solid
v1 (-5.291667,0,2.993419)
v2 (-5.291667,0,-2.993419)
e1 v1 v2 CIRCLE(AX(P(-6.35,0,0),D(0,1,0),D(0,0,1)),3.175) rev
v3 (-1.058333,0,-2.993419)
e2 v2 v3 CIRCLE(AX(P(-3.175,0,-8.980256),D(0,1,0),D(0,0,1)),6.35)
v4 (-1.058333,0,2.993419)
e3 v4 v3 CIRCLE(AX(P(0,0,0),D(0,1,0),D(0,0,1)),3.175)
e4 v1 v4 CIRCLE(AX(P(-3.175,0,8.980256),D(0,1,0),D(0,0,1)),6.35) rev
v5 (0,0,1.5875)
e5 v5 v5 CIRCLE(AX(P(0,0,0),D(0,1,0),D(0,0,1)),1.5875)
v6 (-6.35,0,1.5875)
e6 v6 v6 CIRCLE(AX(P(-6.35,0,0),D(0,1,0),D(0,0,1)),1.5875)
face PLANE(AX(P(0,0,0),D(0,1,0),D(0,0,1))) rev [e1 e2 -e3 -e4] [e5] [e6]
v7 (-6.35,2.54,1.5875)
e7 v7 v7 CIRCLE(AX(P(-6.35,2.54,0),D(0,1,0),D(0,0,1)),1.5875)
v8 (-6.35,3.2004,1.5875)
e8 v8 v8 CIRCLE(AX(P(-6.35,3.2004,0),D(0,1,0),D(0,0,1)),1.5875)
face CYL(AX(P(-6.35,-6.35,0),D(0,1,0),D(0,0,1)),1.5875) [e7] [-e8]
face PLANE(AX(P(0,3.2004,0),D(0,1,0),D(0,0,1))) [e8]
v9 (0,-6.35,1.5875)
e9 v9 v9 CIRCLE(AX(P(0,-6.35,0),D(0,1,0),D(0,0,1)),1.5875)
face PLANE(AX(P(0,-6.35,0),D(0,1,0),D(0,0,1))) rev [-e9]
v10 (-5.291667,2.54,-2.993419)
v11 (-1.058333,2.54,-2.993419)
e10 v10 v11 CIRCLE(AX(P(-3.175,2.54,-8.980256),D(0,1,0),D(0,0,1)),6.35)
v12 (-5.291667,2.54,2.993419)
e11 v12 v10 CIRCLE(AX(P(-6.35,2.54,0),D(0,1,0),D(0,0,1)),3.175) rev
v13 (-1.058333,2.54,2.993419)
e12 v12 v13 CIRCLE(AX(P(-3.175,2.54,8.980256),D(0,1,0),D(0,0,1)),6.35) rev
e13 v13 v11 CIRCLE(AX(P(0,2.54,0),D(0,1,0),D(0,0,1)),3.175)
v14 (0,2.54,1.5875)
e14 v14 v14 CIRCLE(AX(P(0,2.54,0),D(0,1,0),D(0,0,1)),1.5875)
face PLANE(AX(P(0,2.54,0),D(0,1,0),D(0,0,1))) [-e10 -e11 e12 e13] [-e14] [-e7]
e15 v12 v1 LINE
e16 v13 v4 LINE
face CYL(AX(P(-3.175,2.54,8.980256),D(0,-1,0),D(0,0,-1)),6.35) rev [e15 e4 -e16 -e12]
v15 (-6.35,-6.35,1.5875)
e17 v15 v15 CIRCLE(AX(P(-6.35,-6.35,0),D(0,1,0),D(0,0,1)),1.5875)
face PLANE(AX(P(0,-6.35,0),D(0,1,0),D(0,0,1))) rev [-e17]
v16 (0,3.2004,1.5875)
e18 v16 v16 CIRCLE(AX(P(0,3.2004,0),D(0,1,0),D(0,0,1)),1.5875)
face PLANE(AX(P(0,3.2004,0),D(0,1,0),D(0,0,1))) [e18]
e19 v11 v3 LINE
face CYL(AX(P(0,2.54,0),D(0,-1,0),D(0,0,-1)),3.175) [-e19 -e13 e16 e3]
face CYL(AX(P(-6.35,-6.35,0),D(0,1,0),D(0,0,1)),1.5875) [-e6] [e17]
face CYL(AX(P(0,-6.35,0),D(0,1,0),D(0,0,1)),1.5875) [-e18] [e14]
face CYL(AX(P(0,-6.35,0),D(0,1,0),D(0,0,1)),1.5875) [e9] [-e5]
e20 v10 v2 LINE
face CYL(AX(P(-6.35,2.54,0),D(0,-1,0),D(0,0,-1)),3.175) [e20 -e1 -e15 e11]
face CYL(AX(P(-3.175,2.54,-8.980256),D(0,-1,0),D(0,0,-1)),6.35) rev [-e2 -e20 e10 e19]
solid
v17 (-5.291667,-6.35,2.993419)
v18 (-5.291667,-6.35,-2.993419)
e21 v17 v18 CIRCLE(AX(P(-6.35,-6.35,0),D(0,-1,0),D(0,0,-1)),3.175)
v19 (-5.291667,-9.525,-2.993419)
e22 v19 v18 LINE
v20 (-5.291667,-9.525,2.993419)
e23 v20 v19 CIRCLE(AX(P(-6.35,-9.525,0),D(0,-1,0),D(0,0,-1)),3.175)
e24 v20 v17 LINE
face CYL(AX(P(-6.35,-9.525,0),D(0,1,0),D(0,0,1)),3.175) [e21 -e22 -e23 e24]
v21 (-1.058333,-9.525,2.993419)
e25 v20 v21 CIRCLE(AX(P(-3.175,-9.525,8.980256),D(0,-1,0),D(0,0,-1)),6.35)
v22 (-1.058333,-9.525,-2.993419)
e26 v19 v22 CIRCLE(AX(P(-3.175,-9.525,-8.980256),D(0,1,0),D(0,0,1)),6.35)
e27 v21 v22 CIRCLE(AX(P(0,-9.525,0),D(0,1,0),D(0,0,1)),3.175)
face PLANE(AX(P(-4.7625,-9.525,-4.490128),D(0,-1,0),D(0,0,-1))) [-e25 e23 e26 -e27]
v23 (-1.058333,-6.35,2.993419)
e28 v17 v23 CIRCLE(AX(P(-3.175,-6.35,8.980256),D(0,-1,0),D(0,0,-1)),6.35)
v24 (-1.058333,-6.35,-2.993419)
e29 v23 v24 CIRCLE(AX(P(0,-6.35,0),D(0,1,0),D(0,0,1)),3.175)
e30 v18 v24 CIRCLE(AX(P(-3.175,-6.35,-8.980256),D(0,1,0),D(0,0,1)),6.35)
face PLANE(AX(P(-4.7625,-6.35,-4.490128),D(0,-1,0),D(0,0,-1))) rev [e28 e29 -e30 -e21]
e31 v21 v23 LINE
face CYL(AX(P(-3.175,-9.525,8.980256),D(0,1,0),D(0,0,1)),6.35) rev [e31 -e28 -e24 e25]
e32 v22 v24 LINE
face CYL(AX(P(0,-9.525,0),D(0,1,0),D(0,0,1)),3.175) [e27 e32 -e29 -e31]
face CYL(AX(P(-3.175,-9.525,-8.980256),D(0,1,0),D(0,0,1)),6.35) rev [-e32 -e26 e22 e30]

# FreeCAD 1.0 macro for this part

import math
import FreeCAD as App
import Part
import Sketcher
Q = App.Units.Quantity

doc = App.newDocument("Part")
body = doc.addObject("PartDesign::Body", "Body")

sketch1 = body.newObject("Sketcher::SketchObject", "Sketch")
sketch1.AttachmentSupport = (doc.getObject("XZ_Plane"), [""])
sketch1.MapMode = "FlatFace"
sketch1.addGeometry([
    Part.ArcOfCircle(Part.Circle(App.Vector(-6.35, 0, 0), App.Vector(0, 0, 1), 3.175), math.radians(70.528779), math.radians(289.471221)),
    Part.ArcOfCircle(Part.Circle(App.Vector(-3.175, 8.980256, 0), App.Vector(0, 0, 1), 6.35), math.radians(-109.471221), math.radians(-70.528779)),
    Part.ArcOfCircle(Part.Circle(App.Vector(0, 0, 0), App.Vector(0, 0, 1), 3.175), math.radians(-109.471221), math.radians(109.471221)),
    Part.ArcOfCircle(Part.Circle(App.Vector(-3.175, -8.980256, 0), App.Vector(0, 0, 1), 6.35), math.radians(70.528779), math.radians(109.471221)),
    Part.Circle(App.Vector(0, 0, 0), App.Vector(0, 0, 1), 1.5875),
    Part.Circle(App.Vector(-6.35, 0, 0), App.Vector(0, 0, 1), 1.5875),
], False)
sketch1.addConstraint([
    Sketcher.Constraint("Tangent", 0, 1, 1, 1),
    Sketcher.Constraint("Tangent", 1, 2, 2, 2),
    Sketcher.Constraint("Tangent", 2, 1, 3, 1),
    Sketcher.Constraint("Tangent", 3, 2, 0, 2),
    Sketcher.Constraint("Coincident", 2, 3, -1, 1),
    Sketcher.Constraint("Coincident", 4, 3, -1, 1),
    Sketcher.Constraint("Coincident", 5, 3, 0, 3),
    Sketcher.Constraint("Equal", 0, 2),
    Sketcher.Constraint("Equal", 1, 3),
    Sketcher.Constraint("Equal", 4, 5),
    Sketcher.Constraint("PointOnObject", 0, 3, -1),
    Sketcher.Constraint("Radius", 1, Q("0.25 in")),
    Sketcher.Constraint("Diameter", 4, Q("0.125 in")),
    Sketcher.Constraint("Radius", 0, Q("0.125 in")),
    Sketcher.Constraint("DistanceX", 0, 3, -1, 1, Q("0.25 in")),
])
pad1 = body.newObject("PartDesign::Pad", "Pad")
pad1.Profile = sketch1
pad1.Length = Q("0.1 in")
pad1.Reversed = True

sketch2 = body.newObject("Sketcher::SketchObject", "Sketch001")
sketch2.AttachmentSupport = (doc.getObject("XZ_Plane"), [""])
sketch2.MapMode = "FlatFace"
sketch2.addGeometry([
    Part.Circle(App.Vector(-6.35, 0, 0), App.Vector(0, 0, 1), 1.5875),
    Part.Circle(App.Vector(0, 0, 0), App.Vector(0, 0, 1), 1.5875),
], False)
sketch2.addConstraint([
    Sketcher.Constraint("Coincident", 1, 3, -1, 1),
    Sketcher.Constraint("Equal", 0, 1),
    Sketcher.Constraint("PointOnObject", 0, 3, -1),
    Sketcher.Constraint("Diameter", 0, Q("0.125 in")),
    Sketcher.Constraint("DistanceX", 0, 3, -1, 1, Q("0.25 in")),
])
pad2 = body.newObject("PartDesign::Pad", "Pad001")
pad2.Profile = sketch2
pad2.Type = "TwoLengths"
pad2.Length = Q("0.126 in")
pad2.Length2 = Q("0.25 in")
pad2.Reversed = True
body2 = doc.addObject("PartDesign::Body", "Body001")

sketch3 = body2.newObject("Sketcher::SketchObject", "Sketch002")
sketch3.AttachmentSupport = (doc.getObject("XZ_Plane001"), [""])
sketch3.MapMode = "FlatFace"
sketch3.AttachmentOffset = App.Placement(App.Vector(0, 0, 0.25 * 25.4), App.Rotation())
sketch3.addGeometry([
    Part.ArcOfCircle(Part.Circle(App.Vector(-6.35, 0, 0), App.Vector(0, 0, 1), 3.175), math.radians(70.528779), math.radians(289.471221)),
    Part.ArcOfCircle(Part.Circle(App.Vector(-3.175, -8.980256, 0), App.Vector(0, 0, 1), 6.35), math.radians(70.528779), math.radians(109.471221)),
    Part.ArcOfCircle(Part.Circle(App.Vector(0, 0, 0), App.Vector(0, 0, 1), 3.175), math.radians(-109.471221), math.radians(109.471221)),
    Part.ArcOfCircle(Part.Circle(App.Vector(-3.175, 8.980256, 0), App.Vector(0, 0, 1), 6.35), math.radians(-109.471221), math.radians(-70.528779)),
], False)
sketch3.addConstraint([
    Sketcher.Constraint("Tangent", 0, 2, 1, 2),
    Sketcher.Constraint("Tangent", 1, 1, 2, 1),
    Sketcher.Constraint("Tangent", 2, 2, 3, 2),
    Sketcher.Constraint("Tangent", 3, 1, 0, 1),
    Sketcher.Constraint("Coincident", 2, 3, -1, 1),
    Sketcher.Constraint("Equal", 0, 2),
    Sketcher.Constraint("Equal", 1, 3),
    Sketcher.Constraint("PointOnObject", 0, 3, -1),
    Sketcher.Constraint("Radius", 1, Q("0.25 in")),
    Sketcher.Constraint("Radius", 0, Q("0.125 in")),
    Sketcher.Constraint("DistanceX", 0, 3, -1, 1, Q("0.25 in")),
])
pad3 = body2.newObject("PartDesign::Pad", "Pad002")
pad3.Profile = sketch3
pad3.Length = Q("0.125 in")

doc.recompute()
